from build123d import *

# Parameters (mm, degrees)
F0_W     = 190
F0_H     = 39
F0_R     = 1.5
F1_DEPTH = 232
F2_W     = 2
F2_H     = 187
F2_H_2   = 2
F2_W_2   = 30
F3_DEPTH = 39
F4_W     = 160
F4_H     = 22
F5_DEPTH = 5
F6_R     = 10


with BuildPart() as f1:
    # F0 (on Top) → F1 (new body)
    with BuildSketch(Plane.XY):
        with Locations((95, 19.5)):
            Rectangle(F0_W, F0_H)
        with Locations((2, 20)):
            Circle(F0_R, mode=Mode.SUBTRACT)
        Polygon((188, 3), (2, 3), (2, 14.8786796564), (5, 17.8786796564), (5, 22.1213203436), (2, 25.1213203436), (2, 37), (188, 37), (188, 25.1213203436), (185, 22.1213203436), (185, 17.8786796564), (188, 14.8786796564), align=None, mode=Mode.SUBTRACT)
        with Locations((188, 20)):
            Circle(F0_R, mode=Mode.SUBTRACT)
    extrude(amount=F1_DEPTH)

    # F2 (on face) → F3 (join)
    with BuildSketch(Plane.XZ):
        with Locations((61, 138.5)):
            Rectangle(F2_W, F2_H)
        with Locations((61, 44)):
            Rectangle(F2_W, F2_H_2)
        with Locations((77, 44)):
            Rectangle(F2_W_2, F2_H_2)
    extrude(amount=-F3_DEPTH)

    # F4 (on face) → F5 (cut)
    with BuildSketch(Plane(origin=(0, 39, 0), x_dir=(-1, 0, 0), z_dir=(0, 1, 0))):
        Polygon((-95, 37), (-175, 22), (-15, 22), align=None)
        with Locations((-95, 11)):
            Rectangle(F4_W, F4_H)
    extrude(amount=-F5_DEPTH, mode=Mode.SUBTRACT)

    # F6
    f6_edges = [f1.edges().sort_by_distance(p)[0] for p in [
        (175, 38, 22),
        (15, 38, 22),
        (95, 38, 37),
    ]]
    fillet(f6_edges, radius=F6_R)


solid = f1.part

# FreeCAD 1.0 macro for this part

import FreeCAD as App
import Part
import Sketcher


def edges_at(feature, points):
    """Names of the edges that pass closest to the given points."""
    edges = feature.Shape.Edges
    near = lambda p: min(range(len(edges)), key=lambda i: edges[i].distToShape(Part.Vertex(*p))[0])
    return sorted({f"Edge{near(p) + 1}" for p in points})

doc = App.newDocument("Part")
body = doc.addObject("PartDesign::Body", "Body")

# Sketch on XY plane
sketch1 = body.newObject("Sketcher::SketchObject", "Sketch")
sketch1.AttachmentSupport = (doc.getObject("XY_Plane"), [""])
sketch1.MapMode = "FlatFace"
sketch1.addGeometry([
    Part.LineSegment(App.Vector(0, 39, 0), App.Vector(0, 0, 0)),  # 0
    Part.LineSegment(App.Vector(0, 0, 0), App.Vector(190, 0, 0)),  # 1
    Part.LineSegment(App.Vector(190, 0, 0), App.Vector(190, 39, 0)),  # 2
    Part.LineSegment(App.Vector(190, 39, 0), App.Vector(0, 39, 0)),  # 3
    Part.Circle(App.Vector(2, 20, 0), App.Vector(0, 0, 1), 1.5),  # 4
    Part.LineSegment(App.Vector(188, 14.9, 0), App.Vector(188, 3, 0)),  # 5
    Part.LineSegment(App.Vector(188, 3, 0), App.Vector(2, 3, 0)),  # 6
    Part.LineSegment(App.Vector(2, 3, 0), App.Vector(2, 14.9, 0)),  # 7
    Part.LineSegment(App.Vector(2, 14.9, 0), App.Vector(5, 17.9, 0)),  # 8
    Part.LineSegment(App.Vector(5, 17.9, 0), App.Vector(5, 22.1, 0)),  # 9
    Part.LineSegment(App.Vector(5, 22.1, 0), App.Vector(2, 25.1, 0)),  # 10
    Part.LineSegment(App.Vector(2, 25.1, 0), App.Vector(2, 37, 0)),  # 11
    Part.LineSegment(App.Vector(2, 37, 0), App.Vector(188, 37, 0)),  # 12
    Part.LineSegment(App.Vector(188, 37, 0), App.Vector(188, 25.1, 0)),  # 13
    Part.LineSegment(App.Vector(188, 25.1, 0), App.Vector(185, 22.1, 0)),  # 14
    Part.LineSegment(App.Vector(185, 22.1, 0), App.Vector(185, 17.9, 0)),  # 15
    Part.LineSegment(App.Vector(185, 17.9, 0), App.Vector(188, 14.9, 0)),  # 16
    Part.Circle(App.Vector(188, 20, 0), App.Vector(0, 0, 1), 1.5),  # 17
], False)
sketch1.addConstraint([
    Sketcher.Constraint("Coincident", 0, 2, 1, 1),
    Sketcher.Constraint("Coincident", 1, 2, 2, 1),
    Sketcher.Constraint("Coincident", 2, 2, 3, 1),
    Sketcher.Constraint("Coincident", 3, 2, 0, 1),
    Sketcher.Constraint("Coincident", 5, 2, 6, 1),
    Sketcher.Constraint("Coincident", 6, 2, 7, 1),
    Sketcher.Constraint("Coincident", 7, 2, 8, 1),
    Sketcher.Constraint("Coincident", 8, 2, 9, 1),
    Sketcher.Constraint("Coincident", 9, 2, 10, 1),
    Sketcher.Constraint("Coincident", 10, 2, 11, 1),
    Sketcher.Constraint("Coincident", 11, 2, 12, 1),
    Sketcher.Constraint("Coincident", 12, 2, 13, 1),
    Sketcher.Constraint("Coincident", 13, 2, 14, 1),
    Sketcher.Constraint("Coincident", 14, 2, 15, 1),
    Sketcher.Constraint("Coincident", 15, 2, 16, 1),
    Sketcher.Constraint("Coincident", 16, 2, 5, 1),
    Sketcher.Constraint("Vertical", 0),
    Sketcher.Constraint("Horizontal", 1),
    Sketcher.Constraint("Vertical", 2),
    Sketcher.Constraint("Horizontal", 3),
    Sketcher.Constraint("Vertical", 5),
    Sketcher.Constraint("Horizontal", 6),
    Sketcher.Constraint("Vertical", 7),
    Sketcher.Constraint("Vertical", 9),
    Sketcher.Constraint("Vertical", 11),
    Sketcher.Constraint("Horizontal", 12),
    Sketcher.Constraint("Vertical", 13),
    Sketcher.Constraint("Vertical", 15),
    Sketcher.Constraint("Coincident", 0, 2, -1, 1),
    Sketcher.Constraint("Equal", 4, 17),
    Sketcher.Constraint("Perpendicular", 8, 10),
    Sketcher.Constraint("Perpendicular", 10, 14),
    Sketcher.Constraint("Perpendicular", 14, 16),
    Sketcher.Constraint("Horizontal", 4, 3, 17, 3),
    Sketcher.Constraint("Horizontal", 10, 2, 13, 2),
    Sketcher.Constraint("Horizontal", 9, 2, 14, 2),
    Sketcher.Constraint("Horizontal", 8, 2, 15, 2),
    Sketcher.Constraint("Horizontal", 7, 2, 16, 2),
    Sketcher.Constraint("Vertical", 17, 3, 5, 2),
    Sketcher.Constraint("Vertical", 4, 3, 6, 2),
    Sketcher.Constraint("Vertical", 7, 2, 10, 2),
    Sketcher.Constraint("Vertical", 5, 2, 12, 2),
    Sketcher.Constraint("Equal", 7, 11),
    Sketcher.Constraint("Diameter", 4, 3.0),
    Sketcher.Constraint("DistanceX", 1, 1, 1, 2, 190.0),
    Sketcher.Constraint("DistanceX", 6, 2, 6, 1, 186.0),
    Sketcher.Constraint("DistanceY", 0, 2, 0, 1, 39.0),
    Sketcher.Constraint("DistanceX", -1, 1, 4, 3, 2.0),
    Sketcher.Constraint("DistanceY", -1, 1, 4, 3, 20.0),
    Sketcher.Constraint("DistanceY", -1, 1, 5, 2, 3.0),
    Sketcher.Constraint("DistanceX", -1, 1, 8, 2, 5.0),
    Sketcher.Constraint("DistanceY", -1, 1, 11, 2, 37.0),
    Sketcher.Constraint("DistanceY", 5, 2, 5, 1, 11.87868),
])
pad1 = body.newObject("PartDesign::Pad", "Pad")
pad1.Profile = sketch1
pad1.Length = 232

# Sketch on XZ plane
sketch2 = body.newObject("Sketcher::SketchObject", "Sketch001")
sketch2.AttachmentSupport = (doc.getObject("XZ_Plane"), [""])
sketch2.MapMode = "FlatFace"
sketch2.addGeometry([
    Part.LineSegment(App.Vector(60, 232, 0), App.Vector(60, 43, 0)),  # 0
    Part.LineSegment(App.Vector(60, 43, 0), App.Vector(92, 43, 0)),  # 1
    Part.LineSegment(App.Vector(92, 43, 0), App.Vector(92, 45, 0)),  # 2
    Part.LineSegment(App.Vector(92, 45, 0), App.Vector(62, 45, 0)),  # 3
    Part.LineSegment(App.Vector(62, 45, 0), App.Vector(62, 232, 0)),  # 4
    Part.LineSegment(App.Vector(62, 232, 0), App.Vector(60, 232, 0)),  # 5
], False)
sketch2.addConstraint([
    Sketcher.Constraint("Coincident", 0, 2, 1, 1),
    Sketcher.Constraint("Coincident", 1, 2, 2, 1),
    Sketcher.Constraint("Coincident", 2, 2, 3, 1),
    Sketcher.Constraint("Coincident", 3, 2, 4, 1),
    Sketcher.Constraint("Coincident", 4, 2, 5, 1),
    Sketcher.Constraint("Coincident", 5, 2, 0, 1),
    Sketcher.Constraint("Vertical", 0),
    Sketcher.Constraint("Horizontal", 1),
    Sketcher.Constraint("Vertical", 2),
    Sketcher.Constraint("Horizontal", 3),
    Sketcher.Constraint("Vertical", 4),
    Sketcher.Constraint("Horizontal", 5),
    Sketcher.Constraint("Equal", 5, 2),
    Sketcher.Constraint("DistanceX", 1, 1, 1, 2, 32.0),
    Sketcher.Constraint("DistanceX", 3, 2, 3, 1, 30.0),
    Sketcher.Constraint("DistanceY", 0, 2, 0, 1, 189.0),
    Sketcher.Constraint("DistanceX", -1, 1, 0, 2, 60.0),
    Sketcher.Constraint("DistanceY", -1, 1, 0, 2, 43.0),
])
pad2 = body.newObject("PartDesign::Pad", "Pad001")
pad2.Profile = sketch2
pad2.Length = 39
pad2.Reversed = True

# Sketch on XZ plane
sketch3 = body.newObject("Sketcher::SketchObject", "Sketch002")
sketch3.AttachmentSupport = (doc.getObject("XZ_Plane"), [""])
sketch3.MapMode = "FlatFace"
sketch3.AttachmentOffset = App.Placement(App.Vector(0, 0, -39), App.Rotation())
sketch3.addGeometry([
    Part.LineSegment(App.Vector(95, 37, 0), App.Vector(175, 22, 0)),  # 0
    Part.LineSegment(App.Vector(175, 22, 0), App.Vector(175, 0, 0)),  # 1
    Part.LineSegment(App.Vector(175, 0, 0), App.Vector(15, 0, 0)),  # 2
    Part.LineSegment(App.Vector(15, 0, 0), App.Vector(15, 22, 0)),  # 3
    Part.LineSegment(App.Vector(15, 22, 0), App.Vector(95, 37, 0)),  # 4
], False)
sketch3.addConstraint([
    Sketcher.Constraint("Coincident", 0, 2, 1, 1),
    Sketcher.Constraint("Coincident", 1, 2, 2, 1),
    Sketcher.Constraint("Coincident", 2, 2, 3, 1),
    Sketcher.Constraint("Coincident", 3, 2, 4, 1),
    Sketcher.Constraint("Coincident", 4, 2, 0, 1),
    Sketcher.Constraint("Vertical", 1),
    Sketcher.Constraint("Horizontal", 2),
    Sketcher.Constraint("Vertical", 3),
    Sketcher.Constraint("PointOnObject", 1, 2, -1),
    Sketcher.Constraint("Horizontal", 0, 2, 3, 2),
    Sketcher.Constraint("Equal", 0, 4),
    Sketcher.Constraint("DistanceX", 2, 2, 2, 1, 160.0),
    Sketcher.Constraint("DistanceY", 1, 2, 1, 1, 22.0),
    Sketcher.Constraint("DistanceX", -1, 1, 0, 2, 175.0),
    Sketcher.Constraint("DistanceY", -1, 1, 4, 2, 37.0),
])
pocket1 = body.newObject("PartDesign::Pocket", "Pocket")
pocket1.Profile = sketch3
pocket1.Length = 5
pocket1.Reversed = True
doc.recompute()

fillet = body.newObject("PartDesign::Fillet", "Fillet")
fillet.Base = (pocket1, edges_at(pocket1, [(175, 38, 22), (15, 38, 22), (95, 38, 37)]))
fillet.Radius = 10

doc.recompute()
